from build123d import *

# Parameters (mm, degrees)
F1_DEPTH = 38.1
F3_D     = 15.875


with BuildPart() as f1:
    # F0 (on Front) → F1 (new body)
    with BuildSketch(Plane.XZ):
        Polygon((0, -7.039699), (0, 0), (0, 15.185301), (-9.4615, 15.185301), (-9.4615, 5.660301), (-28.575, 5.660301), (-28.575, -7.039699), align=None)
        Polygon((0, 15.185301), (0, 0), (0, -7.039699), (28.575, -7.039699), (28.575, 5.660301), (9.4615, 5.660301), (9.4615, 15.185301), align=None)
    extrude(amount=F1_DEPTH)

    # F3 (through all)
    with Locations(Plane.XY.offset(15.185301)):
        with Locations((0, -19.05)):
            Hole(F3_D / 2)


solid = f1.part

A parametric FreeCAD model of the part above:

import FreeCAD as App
import Part
import Sketcher

V = App.Vector
Q = App.Units.Quantity

doc = App.newDocument("Part")
params = doc.addObject("Spreadsheet::Sheet", "Params")
for row, (alias, value) in enumerate([
    ("sketch1_height", "0.5 in"),
    ("sketch1_width", "2.25 in"),
    ("sketch1_width2", "0.745 in"),
    ("sketch1_height2", "0.375 in"),
    ("pad1_length", "1.5 in"),
    ("sketch2_diameter", "0.625 in"),
    ("hole_diameter", "0.625 in"),
], start=1):
    params.set(f"A{row}", alias)
    params.set(f"B{row}", "=" + value)
    params.setAlias(f"B{row}", alias)

body = doc.addObject("PartDesign::Body", "Body")

# Sketch on XZ plane
sketch1 = doc.addObject("Sketcher::SketchObject", "Sketch")
body.addObject(sketch1)
sketch1.AttachmentSupport = (doc.XZ_Plane, [""])
sketch1.MapMode = "FlatFace"
sketch1.addGeometry(Part.LineSegment(V(-9, 15, 0), V(-9, 6, 0)), False)
sketch1.addGeometry(Part.LineSegment(V(-9, 6, 0), V(-29, 6, 0)), False)
sketch1.addGeometry(Part.LineSegment(V(-29, 6, 0), V(-29, -7, 0)), False)
sketch1.addGeometry(Part.LineSegment(V(-29, -7, 0), V(29, -7, 0)), False)
sketch1.addGeometry(Part.LineSegment(V(29, -7, 0), V(29, 6, 0)), False)
sketch1.addGeometry(Part.LineSegment(V(29, 6, 0), V(9, 6, 0)), False)
sketch1.addGeometry(Part.LineSegment(V(9, 6, 0), V(9, 15, 0)), False)
sketch1.addGeometry(Part.LineSegment(V(9, 15, 0), V(-9, 15, 0)), False)
sketch1.addConstraint(Sketcher.Constraint("Coincident", 0, 2, 1, 1))
sketch1.addConstraint(Sketcher.Constraint("Coincident", 1, 2, 2, 1))
sketch1.addConstraint(Sketcher.Constraint("Coincident", 2, 2, 3, 1))
sketch1.addConstraint(Sketcher.Constraint("Coincident", 3, 2, 4, 1))
sketch1.addConstraint(Sketcher.Constraint("Coincident", 4, 2, 5, 1))
sketch1.addConstraint(Sketcher.Constraint("Coincident", 5, 2, 6, 1))
sketch1.addConstraint(Sketcher.Constraint("Coincident", 6, 2, 7, 1))
sketch1.addConstraint(Sketcher.Constraint("Coincident", 7, 2, 0, 1))
sketch1.addConstraint(Sketcher.Constraint("Vertical", 0))
sketch1.addConstraint(Sketcher.Constraint("Horizontal", 1))
sketch1.addConstraint(Sketcher.Constraint("Vertical", 2))
sketch1.addConstraint(Sketcher.Constraint("Horizontal", 3))
sketch1.addConstraint(Sketcher.Constraint("Vertical", 4))
sketch1.addConstraint(Sketcher.Constraint("Horizontal", 5))
sketch1.addConstraint(Sketcher.Constraint("Vertical", 6))
sketch1.addConstraint(Sketcher.Constraint("Horizontal", 7))
sketch1.addConstraint(Sketcher.Constraint("Symmetric", 1, 2, 4, 2, -2))
sketch1.addConstraint(Sketcher.Constraint("Equal", 1, 5))
sketch1.addConstraint(Sketcher.Constraint("DistanceY", 2, 2, 2, 1, Q("0.5 in")))
sketch1.addConstraint(Sketcher.Constraint("DistanceX", 3, 1, 3, 2, Q("2.25 in")))
sketch1.addConstraint(Sketcher.Constraint("DistanceX", 7, 2, 7, 1, Q("0.745 in")))
sketch1.addConstraint(Sketcher.Constraint("DistanceY", 0, 2, 0, 1, Q("0.375 in")))
sketch1.addConstraint(Sketcher.Constraint("DistanceY", -1, 1, 0, 2, 5.660301))
sketch1.setExpression("Constraints[18]", "Params.sketch1_height")
sketch1.setExpression("Constraints[19]", "Params.sketch1_width")
sketch1.setExpression("Constraints[20]", "Params.sketch1_width2")
sketch1.setExpression("Constraints[21]", "Params.sketch1_height2")
pad1 = doc.addObject("PartDesign::Pad", "Pad")
body.addObject(pad1)
pad1.Profile = sketch1
pad1.setExpression("Length", "Params.pad1_length")

# Sketch on XY plane
sketch2 = doc.addObject("Sketcher::SketchObject", "Sketch001")
body.addObject(sketch2)
sketch2.AttachmentSupport = (doc.XY_Plane, [""])
sketch2.MapMode = "FlatFace"
sketch2.AttachmentOffset = App.Placement(V(0, 0, 15.185301), App.Rotation())
sketch2.addGeometry(Part.Circle(V(0, -19, 0), V(0, 0, 1), 8), False)
sketch2.addConstraint(Sketcher.Constraint("PointOnObject", 0, 3, -2))
sketch2.addConstraint(Sketcher.Constraint("Diameter", 0, Q("0.625 in")))
sketch2.addConstraint(Sketcher.Constraint("DistanceY", 0, 3, -1, 1, Q("0.75 in")))
sketch2.setExpression("Constraints[1]", "Params.sketch2_diameter")
doc.recompute()
hole = doc.addObject("PartDesign::Hole", "Hole")
body.addObject(hole)
hole.Profile = sketch2
hole.ThreadType = "None"
hole.setExpression("Diameter", "Params.hole_diameter")
hole.DepthType = "ThroughAll"

doc.recompute()
